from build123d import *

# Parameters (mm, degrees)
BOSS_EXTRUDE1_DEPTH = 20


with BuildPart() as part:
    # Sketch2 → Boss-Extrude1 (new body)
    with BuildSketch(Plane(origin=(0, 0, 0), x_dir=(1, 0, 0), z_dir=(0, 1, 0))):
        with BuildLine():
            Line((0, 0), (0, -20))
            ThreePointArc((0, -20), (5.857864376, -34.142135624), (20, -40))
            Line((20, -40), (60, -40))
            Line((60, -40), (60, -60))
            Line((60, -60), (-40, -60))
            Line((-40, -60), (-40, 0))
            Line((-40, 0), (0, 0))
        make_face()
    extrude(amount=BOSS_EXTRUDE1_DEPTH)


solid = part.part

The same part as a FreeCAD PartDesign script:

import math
import FreeCAD as App
import Part
import Sketcher

V = App.Vector
Q = App.Units.Quantity

doc = App.newDocument("Part")
body = doc.addObject("PartDesign::Body", "Body")

sketch1 = body.newObject("Sketcher::SketchObject", "Sketch")
sketch1.AttachmentSupport = (doc.getObject("XZ_Plane"), [""])
sketch1.MapMode = "FlatFace"
sketch1.addGeometry(Part.LineSegment(V(0, 20, 0), V(0, 0, 0)), False)
sketch1.addGeometry(Part.LineSegment(V(0, 0, 0), V(-40, 0, 0)), False)
sketch1.addGeometry(Part.LineSegment(V(-40, 0, 0), V(-40, 60, 0)), False)
sketch1.addGeometry(Part.LineSegment(V(-40, 60, 0), V(60, 60, 0)), False)
sketch1.addGeometry(Part.LineSegment(V(60, 60, 0), V(60, 40, 0)), False)
sketch1.addGeometry(Part.LineSegment(V(60, 40, 0), V(20, 40, 0)), False)
sketch1.addGeometry(Part.ArcOfCircle(Part.Circle(V(20, 20, 0), V(0, 0, 1), 20), math.radians(90), math.radians(180)), False)
sketch1.addConstraint(Sketcher.Constraint("Coincident", 0, 2, 1, 1))
sketch1.addConstraint(Sketcher.Constraint("Coincident", 1, 2, 2, 1))
sketch1.addConstraint(Sketcher.Constraint("Coincident", 2, 2, 3, 1))
sketch1.addConstraint(Sketcher.Constraint("Coincident", 3, 2, 4, 1))
sketch1.addConstraint(Sketcher.Constraint("Coincident", 4, 2, 5, 1))
sketch1.addConstraint(Sketcher.Constraint("Tangent", 5, 2, 6, 1))
sketch1.addConstraint(Sketcher.Constraint("Tangent", 6, 2, 0, 1))
sketch1.addConstraint(Sketcher.Constraint("Vertical", 0))
sketch1.addConstraint(Sketcher.Constraint("Horizontal", 1))
sketch1.addConstraint(Sketcher.Constraint("Vertical", 2))
sketch1.addConstraint(Sketcher.Constraint("Horizontal", 3))
sketch1.addConstraint(Sketcher.Constraint("Vertical", 4))
sketch1.addConstraint(Sketcher.Constraint("Horizontal", 5))
sketch1.addConstraint(Sketcher.Constraint("Coincident", 0, 2, -1, 1))
sketch1.addConstraint(Sketcher.Constraint("Equal", 1, 5))
sketch1.addConstraint(Sketcher.Constraint("Equal", 0, 4))
sketch1.addConstraint(Sketcher.Constraint("Radius", 6, Q("20 mm")))
sketch1.addConstraint(Sketcher.Constraint("DistanceX", 1, 2, 1, 1, Q("40 mm")))
sketch1.addConstraint(Sketcher.Constraint("DistanceY", 0, 2, 0, 1, Q("20 mm")))
pad1 = body.newObject("PartDesign::Pad", "Pad")
pad1.Profile = sketch1
pad1.Length = 20
pad1.Reversed = True

doc.recompute()
